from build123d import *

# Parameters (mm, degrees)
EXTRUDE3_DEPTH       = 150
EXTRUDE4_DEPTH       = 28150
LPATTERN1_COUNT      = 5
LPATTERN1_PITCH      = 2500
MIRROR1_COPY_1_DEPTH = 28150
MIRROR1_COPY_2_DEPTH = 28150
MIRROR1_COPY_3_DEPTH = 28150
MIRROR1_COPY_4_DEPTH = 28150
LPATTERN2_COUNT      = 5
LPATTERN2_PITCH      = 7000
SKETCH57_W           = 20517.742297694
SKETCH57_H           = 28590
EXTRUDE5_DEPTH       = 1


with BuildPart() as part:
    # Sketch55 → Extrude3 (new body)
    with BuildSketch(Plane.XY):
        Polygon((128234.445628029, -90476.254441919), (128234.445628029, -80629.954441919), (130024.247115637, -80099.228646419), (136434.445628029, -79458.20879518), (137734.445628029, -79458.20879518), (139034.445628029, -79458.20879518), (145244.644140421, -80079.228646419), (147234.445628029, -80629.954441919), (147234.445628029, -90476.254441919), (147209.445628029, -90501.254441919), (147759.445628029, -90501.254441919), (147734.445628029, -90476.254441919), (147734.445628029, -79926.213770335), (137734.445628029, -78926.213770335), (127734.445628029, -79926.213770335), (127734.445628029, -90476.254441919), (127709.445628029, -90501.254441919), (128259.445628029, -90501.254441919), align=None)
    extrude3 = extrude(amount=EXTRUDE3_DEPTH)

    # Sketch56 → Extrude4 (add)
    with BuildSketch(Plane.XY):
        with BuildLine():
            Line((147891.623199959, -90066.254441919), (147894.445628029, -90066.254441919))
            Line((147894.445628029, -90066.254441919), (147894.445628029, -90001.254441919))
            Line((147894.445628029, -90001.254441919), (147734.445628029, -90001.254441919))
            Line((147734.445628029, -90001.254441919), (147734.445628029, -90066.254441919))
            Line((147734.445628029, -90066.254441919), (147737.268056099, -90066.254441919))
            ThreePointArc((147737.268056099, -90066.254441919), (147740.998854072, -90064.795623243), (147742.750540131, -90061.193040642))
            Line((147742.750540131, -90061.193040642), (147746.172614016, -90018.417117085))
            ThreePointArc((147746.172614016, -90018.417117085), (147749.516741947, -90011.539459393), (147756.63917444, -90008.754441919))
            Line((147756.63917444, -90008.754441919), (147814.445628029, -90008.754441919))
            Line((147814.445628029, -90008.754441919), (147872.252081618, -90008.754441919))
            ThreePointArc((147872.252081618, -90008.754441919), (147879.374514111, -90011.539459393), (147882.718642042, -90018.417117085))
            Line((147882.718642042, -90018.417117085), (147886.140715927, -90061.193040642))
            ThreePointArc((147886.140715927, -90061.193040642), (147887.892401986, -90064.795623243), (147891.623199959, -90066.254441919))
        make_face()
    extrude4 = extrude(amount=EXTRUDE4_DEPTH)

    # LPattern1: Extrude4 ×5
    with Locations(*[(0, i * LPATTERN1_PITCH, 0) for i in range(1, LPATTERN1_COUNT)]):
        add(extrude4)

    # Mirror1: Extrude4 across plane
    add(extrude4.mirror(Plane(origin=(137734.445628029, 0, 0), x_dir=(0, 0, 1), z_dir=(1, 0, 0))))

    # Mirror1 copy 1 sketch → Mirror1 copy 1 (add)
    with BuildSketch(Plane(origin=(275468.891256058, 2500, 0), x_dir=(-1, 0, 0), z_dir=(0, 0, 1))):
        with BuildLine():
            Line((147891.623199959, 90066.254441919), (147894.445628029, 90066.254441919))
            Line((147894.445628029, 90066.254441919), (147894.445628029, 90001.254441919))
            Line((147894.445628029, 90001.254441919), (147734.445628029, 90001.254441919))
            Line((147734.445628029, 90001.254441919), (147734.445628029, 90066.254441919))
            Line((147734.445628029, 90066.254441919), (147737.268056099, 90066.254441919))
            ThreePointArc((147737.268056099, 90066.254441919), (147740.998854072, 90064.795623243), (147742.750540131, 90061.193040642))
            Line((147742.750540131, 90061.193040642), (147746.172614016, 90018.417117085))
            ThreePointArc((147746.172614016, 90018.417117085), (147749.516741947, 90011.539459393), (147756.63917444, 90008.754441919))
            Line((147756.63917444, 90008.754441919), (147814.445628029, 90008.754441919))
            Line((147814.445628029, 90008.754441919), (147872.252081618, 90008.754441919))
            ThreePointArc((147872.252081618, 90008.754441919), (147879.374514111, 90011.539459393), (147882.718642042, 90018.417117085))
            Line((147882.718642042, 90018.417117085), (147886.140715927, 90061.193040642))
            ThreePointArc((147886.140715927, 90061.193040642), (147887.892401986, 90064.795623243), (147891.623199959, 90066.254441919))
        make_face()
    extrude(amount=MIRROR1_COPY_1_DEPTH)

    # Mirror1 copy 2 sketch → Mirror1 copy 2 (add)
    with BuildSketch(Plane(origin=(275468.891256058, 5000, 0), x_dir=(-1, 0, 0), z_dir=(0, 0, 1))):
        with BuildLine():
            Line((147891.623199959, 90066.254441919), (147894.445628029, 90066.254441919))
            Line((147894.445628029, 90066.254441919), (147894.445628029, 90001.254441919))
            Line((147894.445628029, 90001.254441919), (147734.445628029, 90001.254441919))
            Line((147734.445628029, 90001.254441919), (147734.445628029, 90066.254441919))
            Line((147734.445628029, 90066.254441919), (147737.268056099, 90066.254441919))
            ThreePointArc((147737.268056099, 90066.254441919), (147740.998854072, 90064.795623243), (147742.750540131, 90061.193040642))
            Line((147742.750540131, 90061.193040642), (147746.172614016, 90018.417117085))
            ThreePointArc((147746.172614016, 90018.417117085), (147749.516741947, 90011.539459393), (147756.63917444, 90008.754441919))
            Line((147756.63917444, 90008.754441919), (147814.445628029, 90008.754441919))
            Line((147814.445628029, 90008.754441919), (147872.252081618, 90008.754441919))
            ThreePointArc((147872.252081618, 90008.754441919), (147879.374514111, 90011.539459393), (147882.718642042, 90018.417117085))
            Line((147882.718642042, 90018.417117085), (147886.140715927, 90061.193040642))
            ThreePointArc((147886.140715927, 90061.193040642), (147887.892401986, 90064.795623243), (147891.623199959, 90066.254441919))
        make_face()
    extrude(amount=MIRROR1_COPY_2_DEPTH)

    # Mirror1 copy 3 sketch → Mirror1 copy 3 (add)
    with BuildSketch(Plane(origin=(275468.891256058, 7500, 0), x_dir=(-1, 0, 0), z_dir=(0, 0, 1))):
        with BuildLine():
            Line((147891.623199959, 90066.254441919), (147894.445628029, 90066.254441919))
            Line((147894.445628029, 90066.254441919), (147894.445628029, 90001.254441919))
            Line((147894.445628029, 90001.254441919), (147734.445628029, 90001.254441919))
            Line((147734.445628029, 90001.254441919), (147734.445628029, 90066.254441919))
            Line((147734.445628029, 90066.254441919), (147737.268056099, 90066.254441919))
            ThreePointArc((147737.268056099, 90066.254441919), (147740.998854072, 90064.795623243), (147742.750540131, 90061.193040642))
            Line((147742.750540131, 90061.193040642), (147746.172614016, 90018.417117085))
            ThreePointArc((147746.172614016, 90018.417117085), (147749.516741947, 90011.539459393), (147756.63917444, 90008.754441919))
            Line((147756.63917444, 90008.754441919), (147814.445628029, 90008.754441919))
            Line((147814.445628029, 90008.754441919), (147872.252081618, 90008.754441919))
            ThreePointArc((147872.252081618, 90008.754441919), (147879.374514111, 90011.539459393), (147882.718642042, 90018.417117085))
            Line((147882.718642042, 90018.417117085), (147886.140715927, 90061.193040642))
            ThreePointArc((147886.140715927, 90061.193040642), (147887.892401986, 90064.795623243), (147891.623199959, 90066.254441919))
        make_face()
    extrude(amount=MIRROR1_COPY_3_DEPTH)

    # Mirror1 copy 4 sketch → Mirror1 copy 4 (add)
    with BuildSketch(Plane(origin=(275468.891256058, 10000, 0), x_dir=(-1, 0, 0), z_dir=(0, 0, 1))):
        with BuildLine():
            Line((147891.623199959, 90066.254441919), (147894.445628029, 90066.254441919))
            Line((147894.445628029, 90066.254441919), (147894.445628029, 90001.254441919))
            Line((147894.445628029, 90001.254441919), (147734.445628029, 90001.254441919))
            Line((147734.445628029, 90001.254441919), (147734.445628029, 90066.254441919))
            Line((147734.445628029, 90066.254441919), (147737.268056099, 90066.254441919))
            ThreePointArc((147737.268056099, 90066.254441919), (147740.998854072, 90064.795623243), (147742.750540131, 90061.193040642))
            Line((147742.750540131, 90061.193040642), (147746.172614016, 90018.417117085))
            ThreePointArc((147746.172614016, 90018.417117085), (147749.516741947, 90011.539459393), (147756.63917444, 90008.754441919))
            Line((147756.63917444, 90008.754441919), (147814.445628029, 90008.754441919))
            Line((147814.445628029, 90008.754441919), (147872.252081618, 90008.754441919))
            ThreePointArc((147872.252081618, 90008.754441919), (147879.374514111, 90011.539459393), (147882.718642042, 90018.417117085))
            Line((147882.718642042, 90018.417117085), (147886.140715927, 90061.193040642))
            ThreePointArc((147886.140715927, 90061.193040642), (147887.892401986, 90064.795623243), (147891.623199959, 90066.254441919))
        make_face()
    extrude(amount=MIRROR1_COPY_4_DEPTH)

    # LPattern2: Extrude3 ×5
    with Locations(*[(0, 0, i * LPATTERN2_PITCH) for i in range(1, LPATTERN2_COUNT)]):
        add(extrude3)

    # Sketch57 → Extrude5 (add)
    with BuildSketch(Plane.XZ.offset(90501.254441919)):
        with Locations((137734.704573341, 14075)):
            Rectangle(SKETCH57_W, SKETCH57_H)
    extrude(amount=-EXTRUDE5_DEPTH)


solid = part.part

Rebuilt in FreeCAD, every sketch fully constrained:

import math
import FreeCAD as App
import Part
import Sketcher

V = App.Vector
Q = App.Units.Quantity

doc = App.newDocument("Part")
body = doc.addObject("PartDesign::Body", "Body")

# Sketch on XY plane
sketch1 = body.newObject("Sketcher::SketchObject", "Sketch")
sketch1.AttachmentSupport = (doc.getObject("XY_Plane"), [""])
sketch1.MapMode = "FlatFace"
sketch1.addGeometry([
    Part.LineSegment(V(128234, -90476, 0), V(128234, -80630, 0)),  # 0
    Part.LineSegment(V(128234, -80630, 0), V(130024, -80099, 0)),  # 1
    Part.LineSegment(V(130024, -80099, 0), V(136434, -79458, 0)),  # 2
    Part.LineSegment(V(136434, -79458, 0), V(139034, -79458, 0)),  # 3
    Part.LineSegment(V(139034, -79458, 0), V(145245, -80079, 0)),  # 4
    Part.LineSegment(V(145245, -80079, 0), V(147234, -80630, 0)),  # 5
    Part.LineSegment(V(147234, -80630, 0), V(147234, -90476, 0)),  # 6
    Part.LineSegment(V(147234, -90476, 0), V(147209, -90501, 0)),  # 7
    Part.LineSegment(V(147209, -90501, 0), V(147759, -90501, 0)),  # 8
    Part.LineSegment(V(147759, -90501, 0), V(147734, -90476, 0)),  # 9
    Part.LineSegment(V(147734, -90476, 0), V(147734, -79926, 0)),  # 10
    Part.LineSegment(V(147734, -79926, 0), V(137734, -78926, 0)),  # 11
    Part.LineSegment(V(137734, -78926, 0), V(127734, -79926, 0)),  # 12
    Part.LineSegment(V(127734, -79926, 0), V(127734, -90476, 0)),  # 13
    Part.LineSegment(V(127734, -90476, 0), V(127709, -90501, 0)),  # 14
    Part.LineSegment(V(127709, -90501, 0), V(128259, -90501, 0)),  # 15
    Part.LineSegment(V(128259, -90501, 0), V(128234, -90476, 0)),  # 16
], False)
sketch1.addConstraint([
    Sketcher.Constraint("Coincident", 0, 2, 1, 1),
    Sketcher.Constraint("Coincident", 1, 2, 2, 1),
    Sketcher.Constraint("Coincident", 2, 2, 3, 1),
    Sketcher.Constraint("Coincident", 3, 2, 4, 1),
    Sketcher.Constraint("Coincident", 4, 2, 5, 1),
    Sketcher.Constraint("Coincident", 5, 2, 6, 1),
    Sketcher.Constraint("Coincident", 6, 2, 7, 1),
    Sketcher.Constraint("Coincident", 7, 2, 8, 1),
    Sketcher.Constraint("Coincident", 8, 2, 9, 1),
    Sketcher.Constraint("Coincident", 9, 2, 10, 1),
    Sketcher.Constraint("Coincident", 10, 2, 11, 1),
    Sketcher.Constraint("Coincident", 11, 2, 12, 1),
    Sketcher.Constraint("Coincident", 12, 2, 13, 1),
    Sketcher.Constraint("Coincident", 13, 2, 14, 1),
    Sketcher.Constraint("Coincident", 14, 2, 15, 1),
    Sketcher.Constraint("Coincident", 15, 2, 16, 1),
    Sketcher.Constraint("Coincident", 16, 2, 0, 1),
    Sketcher.Constraint("Vertical", 0),
    Sketcher.Constraint("Horizontal", 3),
    Sketcher.Constraint("Vertical", 6),
    Sketcher.Constraint("Horizontal", 8),
    Sketcher.Constraint("Vertical", 10),
    Sketcher.Constraint("Vertical", 13),
    Sketcher.Constraint("Horizontal", 15),
    Sketcher.Constraint("Perpendicular", 7, 9),
    Sketcher.Constraint("Parallel", 4, 11),
    Sketcher.Constraint("Parallel", 2, 12),
    Sketcher.Constraint("Perpendicular", 9, 14),
    Sketcher.Constraint("Perpendicular", 14, 16),
    Sketcher.Constraint("Horizontal", 0, 2, 5, 2),
    Sketcher.Constraint("Horizontal", 6, 2, 9, 2),
    Sketcher.Constraint("Horizontal", 10, 2, 12, 2),
    Sketcher.Constraint("Horizontal", 9, 2, 13, 2),
    Sketcher.Constraint("Horizontal", 8, 2, 14, 2),
    Sketcher.Constraint("Horizontal", 13, 2, 16, 2),
    Sketcher.Constraint("Equal", 8, 15),
    Sketcher.Constraint("Equal", 7, 9),
    Sketcher.Constraint("Equal", 11, 12),
    Sketcher.Constraint("DistanceX", 3, 1, 3, 2, Q("2600 mm")),
    Sketcher.Constraint("DistanceX", 8, 1, 8, 2, Q("550 mm")),
    Sketcher.Constraint("DistanceY", 0, 1, 0, 2, Q("9846.3 mm")),
    Sketcher.Constraint("DistanceX", 0, 2, 2, 2, Q("8200 mm")),
    Sketcher.Constraint("DistanceY", 1, 2, 4, 2, Q("20 mm")),
    Sketcher.Constraint("DistanceX", 3, 2, 5, 2, Q("8200 mm")),
    Sketcher.Constraint("DistanceX", 7, 2, 6, 2, Q("25 mm")),
    Sketcher.Constraint("DistanceY", 12, 2, 11, 2, Q("1000 mm")),
    Sketcher.Constraint("DistanceY", 10, 1, 10, 2, Q("10550.040672 mm")),
    Sketcher.Constraint("DistanceX", -1, 1, 0, 2, Q("128234.445628 mm")),
    Sketcher.Constraint("DistanceY", 0, 2, -1, 1, Q("80629.954442 mm")),
    Sketcher.Constraint("DistanceX", -1, 1, 4, 2, Q("145244.64414 mm")),
    Sketcher.Constraint("Distance", 1, Q("1866.831335 mm")),
])
pad1 = body.newObject("PartDesign::Pad", "Pad")
pad1.Profile = sketch1
pad1.Length = 150

# Sketch on XY plane
sketch2 = body.newObject("Sketcher::SketchObject", "Sketch001")
sketch2.AttachmentSupport = (doc.getObject("XY_Plane"), [""])
sketch2.MapMode = "FlatFace"
sketch2.addGeometry([
    Part.LineSegment(V(147891.6, -90066.3, 0), V(147894.4, -90066.3, 0)),  # 0
    Part.LineSegment(V(147894.4, -90066.3, 0), V(147894.4, -90001.3, 0)),  # 1
    Part.LineSegment(V(147894.4, -90001.3, 0), V(147734.4, -90001.3, 0)),  # 2
    Part.LineSegment(V(147734.4, -90001.3, 0), V(147734.4, -90066.3, 0)),  # 3
    Part.LineSegment(V(147734.4, -90066.3, 0), V(147737.3, -90066.3, 0)),  # 4
    Part.ArcOfCircle(Part.Circle(V(147737.3, -90060.8, 0), V(0, 0, 1), 5.5), math.radians(-90), math.radians(-5)),  # 5
    Part.LineSegment(V(147742.8, -90061.2, 0), V(147746.2, -90018.4, 0)),  # 6
    Part.ArcOfCircle(Part.Circle(V(147756.6, -90019.3, 0), V(0, 0, 1), 10.5), math.radians(90), math.radians(175)),  # 7
    Part.LineSegment(V(147756.6, -90008.8, 0), V(147872.3, -90008.8, 0)),  # 8
    Part.ArcOfCircle(Part.Circle(V(147872.3, -90019.3, 0), V(0, 0, 1), 10.5), math.radians(5), math.radians(90)),  # 9
    Part.LineSegment(V(147882.7, -90018.4, 0), V(147886.1, -90061.2, 0)),  # 10
    Part.ArcOfCircle(Part.Circle(V(147891.6, -90060.8, 0), V(0, 0, 1), 5.5), math.radians(-175), math.radians(-90)),  # 11
], False)
sketch2.addConstraint([
    Sketcher.Constraint("Coincident", 0, 2, 1, 1),
    Sketcher.Constraint("Coincident", 1, 2, 2, 1),
    Sketcher.Constraint("Coincident", 2, 2, 3, 1),
    Sketcher.Constraint("Coincident", 3, 2, 4, 1),
    Sketcher.Constraint("Tangent", 4, 2, 5, 1),
    Sketcher.Constraint("Tangent", 5, 2, 6, 1),
    Sketcher.Constraint("Tangent", 6, 2, 7, 2),
    Sketcher.Constraint("Tangent", 7, 1, 8, 1),
    Sketcher.Constraint("Tangent", 8, 2, 9, 2),
    Sketcher.Constraint("Tangent", 9, 1, 10, 1),
    Sketcher.Constraint("Tangent", 10, 2, 11, 1),
    Sketcher.Constraint("Tangent", 11, 2, 0, 1),
    Sketcher.Constraint("Horizontal", 0),
    Sketcher.Constraint("Vertical", 1),
    Sketcher.Constraint("Horizontal", 2),
    Sketcher.Constraint("Vertical", 3),
    Sketcher.Constraint("Horizontal", 4),
    Sketcher.Constraint("Horizontal", 8),
    Sketcher.Constraint("Equal", 7, 9),
    Sketcher.Constraint("Equal", 5, 11),
    Sketcher.Constraint("Horizontal", 5, 3, 11, 3),
    Sketcher.Constraint("Horizontal", 6, 2, 9, 1),
    Sketcher.Constraint("Equal", 0, 4),
    Sketcher.Constraint("Radius", 5, Q("5.5 mm")),
    Sketcher.Constraint("Radius", 7, Q("10.5 mm")),
    Sketcher.Constraint("DistanceX", 2, 2, 2, 1, Q("160 mm")),
    Sketcher.Constraint("DistanceY", 1, 1, 1, 2, Q("65 mm")),
    Sketcher.Constraint("DistanceY", 0, 2, 9, 3, Q("47 mm")),
    Sketcher.Constraint("DistanceX", 0, 1, 0, 2, Q("2.822428 mm")),
    Sketcher.Constraint("DistanceX", -1, 1, 11, 3, Q("147891.6232 mm")),
    Sketcher.Constraint("DistanceY", 5, 2, 5, 3, Q("0.438599 mm")),
    Sketcher.Constraint("DistanceY", 5, 3, -1, 1, Q("90060.754442 mm")),
])
pad2 = body.newObject("PartDesign::Pad", "Pad001")
pad2.Profile = sketch2
pad2.Length = 28150
doc.recompute()

linearpattern = body.newObject("PartDesign::LinearPattern", "LinearPattern")
linearpattern.Originals = [pad2]
linearpattern.Direction = (doc.getObject("Y_Axis"), [""])
linearpattern.Mode = "offset"
linearpattern.Offset = 2500
linearpattern.Occurrences = 5
body.Tip = linearpattern
doc.recompute()

datumplane = body.newObject("PartDesign::Plane", "DatumPlane")
datumplane.AttachmentSupport = (doc.getObject("YZ_Plane"), [""])
datumplane.MapMode = "FlatFace"
datumplane.AttachmentOffset = App.Placement(V(0, 0, 137734.445628), App.Rotation())
mirrored = body.newObject("PartDesign::Mirrored", "Mirrored")
mirrored.Originals = [pad2]
mirrored.MirrorPlane = (datumplane, [""])
body.Tip = mirrored

# Sketch on XY plane
sketch3 = body.newObject("Sketcher::SketchObject", "Sketch002")
sketch3.AttachmentSupport = (doc.getObject("XY_Plane"), [""])
sketch3.MapMode = "FlatFace"
sketch3.addGeometry([
    Part.LineSegment(V(127574.4, -87566.3, 0), V(127577.3, -87566.3, 0)),  # 0
    Part.ArcOfCircle(Part.Circle(V(127577.3, -87560.8, 0), V(0, 0, 1), 5.5), math.radians(-90), math.radians(-5)),  # 1
    Part.LineSegment(V(127582.8, -87561.2, 0), V(127586.2, -87518.4, 0)),  # 2
    Part.ArcOfCircle(Part.Circle(V(127596.6, -87519.3, 0), V(0, 0, 1), 10.5), math.radians(90), math.radians(175)),  # 3
    Part.LineSegment(V(127596.6, -87508.8, 0), V(127712.3, -87508.8, 0)),  # 4
    Part.ArcOfCircle(Part.Circle(V(127712.3, -87519.3, 0), V(0, 0, 1), 10.5), math.radians(5), math.radians(90)),  # 5
    Part.LineSegment(V(127722.7, -87518.4, 0), V(127726.1, -87561.2, 0)),  # 6
    Part.ArcOfCircle(Part.Circle(V(127731.6, -87560.8, 0), V(0, 0, 1), 5.5), math.radians(-175), math.radians(-90)),  # 7
    Part.LineSegment(V(127731.6, -87566.3, 0), V(127734.4, -87566.3, 0)),  # 8
    Part.LineSegment(V(127734.4, -87566.3, 0), V(127734.4, -87501.3, 0)),  # 9
    Part.LineSegment(V(127734.4, -87501.3, 0), V(127574.4, -87501.3, 0)),  # 10
    Part.LineSegment(V(127574.4, -87501.3, 0), V(127574.4, -87566.3, 0)),  # 11
], False)
sketch3.addConstraint([
    Sketcher.Constraint("Tangent", 0, 2, 1, 1),
    Sketcher.Constraint("Tangent", 1, 2, 2, 1),
    Sketcher.Constraint("Tangent", 2, 2, 3, 2),
    Sketcher.Constraint("Tangent", 3, 1, 4, 1),
    Sketcher.Constraint("Tangent", 4, 2, 5, 2),
    Sketcher.Constraint("Tangent", 5, 1, 6, 1),
    Sketcher.Constraint("Tangent", 6, 2, 7, 1),
    Sketcher.Constraint("Tangent", 7, 2, 8, 1),
    Sketcher.Constraint("Coincident", 8, 2, 9, 1),
    Sketcher.Constraint("Coincident", 9, 2, 10, 1),
    Sketcher.Constraint("Coincident", 10, 2, 11, 1),
    Sketcher.Constraint("Coincident", 11, 2, 0, 1),
    Sketcher.Constraint("Horizontal", 0),
    Sketcher.Constraint("Horizontal", 4),
    Sketcher.Constraint("Horizontal", 8),
    Sketcher.Constraint("Vertical", 9),
    Sketcher.Constraint("Horizontal", 10),
    Sketcher.Constraint("Vertical", 11),
    Sketcher.Constraint("Equal", 3, 5),
    Sketcher.Constraint("Equal", 1, 7),
    Sketcher.Constraint("Horizontal", 1, 3, 7, 3),
    Sketcher.Constraint("Horizontal", 2, 2, 5, 1),
    Sketcher.Constraint("Equal", 0, 8),
    Sketcher.Constraint("Radius", 1, Q("5.5 mm")),
    Sketcher.Constraint("Radius", 3, Q("10.5 mm")),
    Sketcher.Constraint("DistanceX", 10, 2, 10, 1, Q("160 mm")),
    Sketcher.Constraint("DistanceY", 9, 1, 9, 2, Q("65 mm")),
    Sketcher.Constraint("DistanceY", 0, 2, 3, 3, Q("47 mm")),
    Sketcher.Constraint("DistanceX", 0, 1, 0, 2, Q("2.822428 mm")),
    Sketcher.Constraint("DistanceX", -1, 1, 7, 3, Q("127731.6232 mm")),
    Sketcher.Constraint("DistanceY", 1, 2, 1, 3, Q("0.438599 mm")),
    Sketcher.Constraint("DistanceY", 1, 3, -1, 1, Q("87560.754442 mm")),
])
pad3 = body.newObject("PartDesign::Pad", "Pad002")
pad3.Profile = sketch3
pad3.Length = 28150

# Sketch on XY plane
sketch4 = body.newObject("Sketcher::SketchObject", "Sketch003")
sketch4.AttachmentSupport = (doc.getObject("XY_Plane"), [""])
sketch4.MapMode = "FlatFace"
sketch4.addGeometry([
    Part.LineSegment(V(127574.4, -85066.3, 0), V(127577.3, -85066.3, 0)),  # 0
    Part.ArcOfCircle(Part.Circle(V(127577.3, -85060.8, 0), V(0, 0, 1), 5.5), math.radians(-90), math.radians(-5)),  # 1
    Part.LineSegment(V(127582.8, -85061.2, 0), V(127586.2, -85018.4, 0)),  # 2
    Part.ArcOfCircle(Part.Circle(V(127596.6, -85019.3, 0), V(0, 0, 1), 10.5), math.radians(90), math.radians(175)),  # 3
    Part.LineSegment(V(127596.6, -85008.8, 0), V(127712.3, -85008.8, 0)),  # 4
    Part.ArcOfCircle(Part.Circle(V(127712.3, -85019.3, 0), V(0, 0, 1), 10.5), math.radians(5), math.radians(90)),  # 5
    Part.LineSegment(V(127722.7, -85018.4, 0), V(127726.1, -85061.2, 0)),  # 6
    Part.ArcOfCircle(Part.Circle(V(127731.6, -85060.8, 0), V(0, 0, 1), 5.5), math.radians(-175), math.radians(-90)),  # 7
    Part.LineSegment(V(127731.6, -85066.3, 0), V(127734.4, -85066.3, 0)),  # 8
    Part.LineSegment(V(127734.4, -85066.3, 0), V(127734.4, -85001.3, 0)),  # 9
    Part.LineSegment(V(127734.4, -85001.3, 0), V(127574.4, -85001.3, 0)),  # 10
    Part.LineSegment(V(127574.4, -85001.3, 0), V(127574.4, -85066.3, 0)),  # 11
], False)
sketch4.addConstraint([
    Sketcher.Constraint("Tangent", 0, 2, 1, 1),
    Sketcher.Constraint("Tangent", 1, 2, 2, 1),
    Sketcher.Constraint("Tangent", 2, 2, 3, 2),
    Sketcher.Constraint("Tangent", 3, 1, 4, 1),
    Sketcher.Constraint("Tangent", 4, 2, 5, 2),
    Sketcher.Constraint("Tangent", 5, 1, 6, 1),
    Sketcher.Constraint("Tangent", 6, 2, 7, 1),
    Sketcher.Constraint("Tangent", 7, 2, 8, 1),
    Sketcher.Constraint("Coincident", 8, 2, 9, 1),
    Sketcher.Constraint("Coincident", 9, 2, 10, 1),
    Sketcher.Constraint("Coincident", 10, 2, 11, 1),
    Sketcher.Constraint("Coincident", 11, 2, 0, 1),
    Sketcher.Constraint("Horizontal", 0),
    Sketcher.Constraint("Horizontal", 4),
    Sketcher.Constraint("Horizontal", 8),
    Sketcher.Constraint("Vertical", 9),
    Sketcher.Constraint("Horizontal", 10),
    Sketcher.Constraint("Vertical", 11),
    Sketcher.Constraint("Equal", 3, 5),
    Sketcher.Constraint("Equal", 1, 7),
    Sketcher.Constraint("Horizontal", 1, 3, 7, 3),
    Sketcher.Constraint("Horizontal", 2, 2, 5, 1),
    Sketcher.Constraint("Equal", 0, 8),
    Sketcher.Constraint("Radius", 1, Q("5.5 mm")),
    Sketcher.Constraint("Radius", 3, Q("10.5 mm")),
    Sketcher.Constraint("DistanceX", 10, 2, 10, 1, Q("160 mm")),
    Sketcher.Constraint("DistanceY", 9, 1, 9, 2, Q("65 mm")),
    Sketcher.Constraint("DistanceY", 0, 2, 3, 3, Q("47 mm")),
    Sketcher.Constraint("DistanceX", 0, 1, 0, 2, Q("2.822428 mm")),
    Sketcher.Constraint("DistanceX", -1, 1, 7, 3, Q("127731.6232 mm")),
    Sketcher.Constraint("DistanceY", 1, 2, 1, 3, Q("0.438599 mm")),
    Sketcher.Constraint("DistanceY", 1, 3, -1, 1, Q("85060.754442 mm")),
])
pad4 = body.newObject("PartDesign::Pad", "Pad003")
pad4.Profile = sketch4
pad4.Length = 28150

# Sketch on XY plane
sketch5 = body.newObject("Sketcher::SketchObject", "Sketch004")
sketch5.AttachmentSupport = (doc.getObject("XY_Plane"), [""])
sketch5.MapMode = "FlatFace"
sketch5.addGeometry([
    Part.LineSegment(V(127574.4, -82566.3, 0), V(127577.3, -82566.3, 0)),  # 0
    Part.ArcOfCircle(Part.Circle(V(127577.3, -82560.8, 0), V(0, 0, 1), 5.5), math.radians(-90), math.radians(-5)),  # 1
    Part.LineSegment(V(127582.8, -82561.2, 0), V(127586.2, -82518.4, 0)),  # 2
    Part.ArcOfCircle(Part.Circle(V(127596.6, -82519.3, 0), V(0, 0, 1), 10.5), math.radians(90), math.radians(175)),  # 3
    Part.LineSegment(V(127596.6, -82508.8, 0), V(127712.3, -82508.8, 0)),  # 4
    Part.ArcOfCircle(Part.Circle(V(127712.3, -82519.3, 0), V(0, 0, 1), 10.5), math.radians(5), math.radians(90)),  # 5
    Part.LineSegment(V(127722.7, -82518.4, 0), V(127726.1, -82561.2, 0)),  # 6
    Part.ArcOfCircle(Part.Circle(V(127731.6, -82560.8, 0), V(0, 0, 1), 5.5), math.radians(-175), math.radians(-90)),  # 7
    Part.LineSegment(V(127731.6, -82566.3, 0), V(127734.4, -82566.3, 0)),  # 8
    Part.LineSegment(V(127734.4, -82566.3, 0), V(127734.4, -82501.3, 0)),  # 9
    Part.LineSegment(V(127734.4, -82501.3, 0), V(127574.4, -82501.3, 0)),  # 10
    Part.LineSegment(V(127574.4, -82501.3, 0), V(127574.4, -82566.3, 0)),  # 11
], False)
sketch5.addConstraint([
    Sketcher.Constraint("Tangent", 0, 2, 1, 1),
    Sketcher.Constraint("Tangent", 1, 2, 2, 1),
    Sketcher.Constraint("Tangent", 2, 2, 3, 2),
    Sketcher.Constraint("Tangent", 3, 1, 4, 1),
    Sketcher.Constraint("Tangent", 4, 2, 5, 2),
    Sketcher.Constraint("Tangent", 5, 1, 6, 1),
    Sketcher.Constraint("Tangent", 6, 2, 7, 1),
    Sketcher.Constraint("Tangent", 7, 2, 8, 1),
    Sketcher.Constraint("Coincident", 8, 2, 9, 1),
    Sketcher.Constraint("Coincident", 9, 2, 10, 1),
    Sketcher.Constraint("Coincident", 10, 2, 11, 1),
    Sketcher.Constraint("Coincident", 11, 2, 0, 1),
    Sketcher.Constraint("Horizontal", 0),
    Sketcher.Constraint("Horizontal", 4),
    Sketcher.Constraint("Horizontal", 8),
    Sketcher.Constraint("Vertical", 9),
    Sketcher.Constraint("Horizontal", 10),
    Sketcher.Constraint("Vertical", 11),
    Sketcher.Constraint("Equal", 3, 5),
    Sketcher.Constraint("Equal", 1, 7),
    Sketcher.Constraint("Horizontal", 1, 3, 7, 3),
    Sketcher.Constraint("Horizontal", 2, 2, 5, 1),
    Sketcher.Constraint("Equal", 0, 8),
    Sketcher.Constraint("Radius", 1, Q("5.5 mm")),
    Sketcher.Constraint("Radius", 3, Q("10.5 mm")),
    Sketcher.Constraint("DistanceX", 10, 2, 10, 1, Q("160 mm")),
    Sketcher.Constraint("DistanceY", 9, 1, 9, 2, Q("65 mm")),
    Sketcher.Constraint("DistanceY", 0, 2, 3, 3, Q("47 mm")),
    Sketcher.Constraint("DistanceX", 0, 1, 0, 2, Q("2.822428 mm")),
    Sketcher.Constraint("DistanceX", -1, 1, 7, 3, Q("127731.6232 mm")),
    Sketcher.Constraint("DistanceY", 1, 2, 1, 3, Q("0.438599 mm")),
    Sketcher.Constraint("DistanceY", 1, 3, -1, 1, Q("82560.754442 mm")),
])
pad5 = body.newObject("PartDesign::Pad", "Pad004")
pad5.Profile = sketch5
pad5.Length = 28150

# Sketch on XY plane
sketch6 = body.newObject("Sketcher::SketchObject", "Sketch005")
sketch6.AttachmentSupport = (doc.getObject("XY_Plane"), [""])
sketch6.MapMode = "FlatFace"
sketch6.addGeometry([
    Part.LineSegment(V(127574.4, -80066.3, 0), V(127577.3, -80066.3, 0)),  # 0
    Part.ArcOfCircle(Part.Circle(V(127577.3, -80060.8, 0), V(0, 0, 1), 5.5), math.radians(-90), math.radians(-5)),  # 1
    Part.LineSegment(V(127582.8, -80061.2, 0), V(127586.2, -80018.4, 0)),  # 2
    Part.ArcOfCircle(Part.Circle(V(127596.6, -80019.3, 0), V(0, 0, 1), 10.5), math.radians(90), math.radians(175)),  # 3
    Part.LineSegment(V(127596.6, -80008.8, 0), V(127712.3, -80008.8, 0)),  # 4
    Part.ArcOfCircle(Part.Circle(V(127712.3, -80019.3, 0), V(0, 0, 1), 10.5), math.radians(5), math.radians(90)),  # 5
    Part.LineSegment(V(127722.7, -80018.4, 0), V(127726.1, -80061.2, 0)),  # 6
    Part.ArcOfCircle(Part.Circle(V(127731.6, -80060.8, 0), V(0, 0, 1), 5.5), math.radians(-175), math.radians(-90)),  # 7
    Part.LineSegment(V(127731.6, -80066.3, 0), V(127734.4, -80066.3, 0)),  # 8
    Part.LineSegment(V(127734.4, -80066.3, 0), V(127734.4, -80001.3, 0)),  # 9
    Part.LineSegment(V(127734.4, -80001.3, 0), V(127574.4, -80001.3, 0)),  # 10
    Part.LineSegment(V(127574.4, -80001.3, 0), V(127574.4, -80066.3, 0)),  # 11
], False)
sketch6.addConstraint([
    Sketcher.Constraint("Tangent", 0, 2, 1, 1),
    Sketcher.Constraint("Tangent", 1, 2, 2, 1),
    Sketcher.Constraint("Tangent", 2, 2, 3, 2),
    Sketcher.Constraint("Tangent", 3, 1, 4, 1),
    Sketcher.Constraint("Tangent", 4, 2, 5, 2),
    Sketcher.Constraint("Tangent", 5, 1, 6, 1),
    Sketcher.Constraint("Tangent", 6, 2, 7, 1),
    Sketcher.Constraint("Tangent", 7, 2, 8, 1),
    Sketcher.Constraint("Coincident", 8, 2, 9, 1),
    Sketcher.Constraint("Coincident", 9, 2, 10, 1),
    Sketcher.Constraint("Coincident", 10, 2, 11, 1),
    Sketcher.Constraint("Coincident", 11, 2, 0, 1),
    Sketcher.Constraint("Horizontal", 0),
    Sketcher.Constraint("Horizontal", 4),
    Sketcher.Constraint("Horizontal", 8),
    Sketcher.Constraint("Vertical", 9),
    Sketcher.Constraint("Horizontal", 10),
    Sketcher.Constraint("Vertical", 11),
    Sketcher.Constraint("Equal", 3, 5),
    Sketcher.Constraint("Equal", 1, 7),
    Sketcher.Constraint("Horizontal", 1, 3, 7, 3),
    Sketcher.Constraint("Horizontal", 2, 2, 5, 1),
    Sketcher.Constraint("Equal", 0, 8),
    Sketcher.Constraint("Radius", 1, Q("5.5 mm")),
    Sketcher.Constraint("Radius", 3, Q("10.5 mm")),
    Sketcher.Constraint("DistanceX", 10, 2, 10, 1, Q("160 mm")),
    Sketcher.Constraint("DistanceY", 9, 1, 9, 2, Q("65 mm")),
    Sketcher.Constraint("DistanceY", 0, 2, 3, 3, Q("47 mm")),
    Sketcher.Constraint("DistanceX", 0, 1, 0, 2, Q("2.822428 mm")),
    Sketcher.Constraint("DistanceX", -1, 1, 7, 3, Q("127731.6232 mm")),
    Sketcher.Constraint("DistanceY", 1, 2, 1, 3, Q("0.438599 mm")),
    Sketcher.Constraint("DistanceY", 1, 3, -1, 1, Q("80060.754442 mm")),
])
pad6 = body.newObject("PartDesign::Pad", "Pad005")
pad6.Profile = sketch6
pad6.Length = 28150
doc.recompute()

linearpattern2 = body.newObject("PartDesign::LinearPattern", "LinearPattern001")
linearpattern2.Originals = [pad1]
linearpattern2.Direction = (doc.getObject("Z_Axis"), [""])
linearpattern2.Mode = "offset"
linearpattern2.Offset = 7000
linearpattern2.Occurrences = 5
body.Tip = linearpattern2

# Sketch on XZ plane
sketch7 = body.newObject("Sketcher::SketchObject", "Sketch006")
sketch7.AttachmentSupport = (doc.getObject("XZ_Plane"), [""])
sketch7.MapMode = "FlatFace"
sketch7.AttachmentOffset = App.Placement(V(0, 0, 90501.254442), App.Rotation())
sketch7.addGeometry([
    Part.LineSegment(V(127475.833424, 28370, 0), V(127475.833424, -220, 0)),
    Part.LineSegment(V(127475.833424, -220, 0), V(147993.575722, -220, 0)),
    Part.LineSegment(V(147993.575722, -220, 0), V(147993.575722, 28370, 0)),
    Part.LineSegment(V(147993.575722, 28370, 0), V(127475.833424, 28370, 0)),
], False)
sketch7.addConstraint([
    Sketcher.Constraint("Coincident", 0, 2, 1, 1),
    Sketcher.Constraint("Coincident", 1, 2, 2, 1),
    Sketcher.Constraint("Coincident", 2, 2, 3, 1),
    Sketcher.Constraint("Coincident", 3, 2, 0, 1),
    Sketcher.Constraint("Vertical", 0),
    Sketcher.Constraint("Horizontal", 1),
    Sketcher.Constraint("Vertical", 2),
    Sketcher.Constraint("Horizontal", 3),
    Sketcher.Constraint("DistanceY", 0, 2, 0, 1, Q("28590 mm")),
    Sketcher.Constraint("DistanceY", 0, 2, -1, 1, Q("220 mm")),
    Sketcher.Constraint("DistanceX", 1, 1, 1, 2, Q("20517.742298 mm")),
    Sketcher.Constraint("DistanceX", -1, 1, 0, 2, Q("127475.833424 mm")),
])
pad7 = body.newObject("PartDesign::Pad", "Pad006")
pad7.Profile = sketch7
pad7.Length = 1
pad7.Reversed = True

doc.recompute()
